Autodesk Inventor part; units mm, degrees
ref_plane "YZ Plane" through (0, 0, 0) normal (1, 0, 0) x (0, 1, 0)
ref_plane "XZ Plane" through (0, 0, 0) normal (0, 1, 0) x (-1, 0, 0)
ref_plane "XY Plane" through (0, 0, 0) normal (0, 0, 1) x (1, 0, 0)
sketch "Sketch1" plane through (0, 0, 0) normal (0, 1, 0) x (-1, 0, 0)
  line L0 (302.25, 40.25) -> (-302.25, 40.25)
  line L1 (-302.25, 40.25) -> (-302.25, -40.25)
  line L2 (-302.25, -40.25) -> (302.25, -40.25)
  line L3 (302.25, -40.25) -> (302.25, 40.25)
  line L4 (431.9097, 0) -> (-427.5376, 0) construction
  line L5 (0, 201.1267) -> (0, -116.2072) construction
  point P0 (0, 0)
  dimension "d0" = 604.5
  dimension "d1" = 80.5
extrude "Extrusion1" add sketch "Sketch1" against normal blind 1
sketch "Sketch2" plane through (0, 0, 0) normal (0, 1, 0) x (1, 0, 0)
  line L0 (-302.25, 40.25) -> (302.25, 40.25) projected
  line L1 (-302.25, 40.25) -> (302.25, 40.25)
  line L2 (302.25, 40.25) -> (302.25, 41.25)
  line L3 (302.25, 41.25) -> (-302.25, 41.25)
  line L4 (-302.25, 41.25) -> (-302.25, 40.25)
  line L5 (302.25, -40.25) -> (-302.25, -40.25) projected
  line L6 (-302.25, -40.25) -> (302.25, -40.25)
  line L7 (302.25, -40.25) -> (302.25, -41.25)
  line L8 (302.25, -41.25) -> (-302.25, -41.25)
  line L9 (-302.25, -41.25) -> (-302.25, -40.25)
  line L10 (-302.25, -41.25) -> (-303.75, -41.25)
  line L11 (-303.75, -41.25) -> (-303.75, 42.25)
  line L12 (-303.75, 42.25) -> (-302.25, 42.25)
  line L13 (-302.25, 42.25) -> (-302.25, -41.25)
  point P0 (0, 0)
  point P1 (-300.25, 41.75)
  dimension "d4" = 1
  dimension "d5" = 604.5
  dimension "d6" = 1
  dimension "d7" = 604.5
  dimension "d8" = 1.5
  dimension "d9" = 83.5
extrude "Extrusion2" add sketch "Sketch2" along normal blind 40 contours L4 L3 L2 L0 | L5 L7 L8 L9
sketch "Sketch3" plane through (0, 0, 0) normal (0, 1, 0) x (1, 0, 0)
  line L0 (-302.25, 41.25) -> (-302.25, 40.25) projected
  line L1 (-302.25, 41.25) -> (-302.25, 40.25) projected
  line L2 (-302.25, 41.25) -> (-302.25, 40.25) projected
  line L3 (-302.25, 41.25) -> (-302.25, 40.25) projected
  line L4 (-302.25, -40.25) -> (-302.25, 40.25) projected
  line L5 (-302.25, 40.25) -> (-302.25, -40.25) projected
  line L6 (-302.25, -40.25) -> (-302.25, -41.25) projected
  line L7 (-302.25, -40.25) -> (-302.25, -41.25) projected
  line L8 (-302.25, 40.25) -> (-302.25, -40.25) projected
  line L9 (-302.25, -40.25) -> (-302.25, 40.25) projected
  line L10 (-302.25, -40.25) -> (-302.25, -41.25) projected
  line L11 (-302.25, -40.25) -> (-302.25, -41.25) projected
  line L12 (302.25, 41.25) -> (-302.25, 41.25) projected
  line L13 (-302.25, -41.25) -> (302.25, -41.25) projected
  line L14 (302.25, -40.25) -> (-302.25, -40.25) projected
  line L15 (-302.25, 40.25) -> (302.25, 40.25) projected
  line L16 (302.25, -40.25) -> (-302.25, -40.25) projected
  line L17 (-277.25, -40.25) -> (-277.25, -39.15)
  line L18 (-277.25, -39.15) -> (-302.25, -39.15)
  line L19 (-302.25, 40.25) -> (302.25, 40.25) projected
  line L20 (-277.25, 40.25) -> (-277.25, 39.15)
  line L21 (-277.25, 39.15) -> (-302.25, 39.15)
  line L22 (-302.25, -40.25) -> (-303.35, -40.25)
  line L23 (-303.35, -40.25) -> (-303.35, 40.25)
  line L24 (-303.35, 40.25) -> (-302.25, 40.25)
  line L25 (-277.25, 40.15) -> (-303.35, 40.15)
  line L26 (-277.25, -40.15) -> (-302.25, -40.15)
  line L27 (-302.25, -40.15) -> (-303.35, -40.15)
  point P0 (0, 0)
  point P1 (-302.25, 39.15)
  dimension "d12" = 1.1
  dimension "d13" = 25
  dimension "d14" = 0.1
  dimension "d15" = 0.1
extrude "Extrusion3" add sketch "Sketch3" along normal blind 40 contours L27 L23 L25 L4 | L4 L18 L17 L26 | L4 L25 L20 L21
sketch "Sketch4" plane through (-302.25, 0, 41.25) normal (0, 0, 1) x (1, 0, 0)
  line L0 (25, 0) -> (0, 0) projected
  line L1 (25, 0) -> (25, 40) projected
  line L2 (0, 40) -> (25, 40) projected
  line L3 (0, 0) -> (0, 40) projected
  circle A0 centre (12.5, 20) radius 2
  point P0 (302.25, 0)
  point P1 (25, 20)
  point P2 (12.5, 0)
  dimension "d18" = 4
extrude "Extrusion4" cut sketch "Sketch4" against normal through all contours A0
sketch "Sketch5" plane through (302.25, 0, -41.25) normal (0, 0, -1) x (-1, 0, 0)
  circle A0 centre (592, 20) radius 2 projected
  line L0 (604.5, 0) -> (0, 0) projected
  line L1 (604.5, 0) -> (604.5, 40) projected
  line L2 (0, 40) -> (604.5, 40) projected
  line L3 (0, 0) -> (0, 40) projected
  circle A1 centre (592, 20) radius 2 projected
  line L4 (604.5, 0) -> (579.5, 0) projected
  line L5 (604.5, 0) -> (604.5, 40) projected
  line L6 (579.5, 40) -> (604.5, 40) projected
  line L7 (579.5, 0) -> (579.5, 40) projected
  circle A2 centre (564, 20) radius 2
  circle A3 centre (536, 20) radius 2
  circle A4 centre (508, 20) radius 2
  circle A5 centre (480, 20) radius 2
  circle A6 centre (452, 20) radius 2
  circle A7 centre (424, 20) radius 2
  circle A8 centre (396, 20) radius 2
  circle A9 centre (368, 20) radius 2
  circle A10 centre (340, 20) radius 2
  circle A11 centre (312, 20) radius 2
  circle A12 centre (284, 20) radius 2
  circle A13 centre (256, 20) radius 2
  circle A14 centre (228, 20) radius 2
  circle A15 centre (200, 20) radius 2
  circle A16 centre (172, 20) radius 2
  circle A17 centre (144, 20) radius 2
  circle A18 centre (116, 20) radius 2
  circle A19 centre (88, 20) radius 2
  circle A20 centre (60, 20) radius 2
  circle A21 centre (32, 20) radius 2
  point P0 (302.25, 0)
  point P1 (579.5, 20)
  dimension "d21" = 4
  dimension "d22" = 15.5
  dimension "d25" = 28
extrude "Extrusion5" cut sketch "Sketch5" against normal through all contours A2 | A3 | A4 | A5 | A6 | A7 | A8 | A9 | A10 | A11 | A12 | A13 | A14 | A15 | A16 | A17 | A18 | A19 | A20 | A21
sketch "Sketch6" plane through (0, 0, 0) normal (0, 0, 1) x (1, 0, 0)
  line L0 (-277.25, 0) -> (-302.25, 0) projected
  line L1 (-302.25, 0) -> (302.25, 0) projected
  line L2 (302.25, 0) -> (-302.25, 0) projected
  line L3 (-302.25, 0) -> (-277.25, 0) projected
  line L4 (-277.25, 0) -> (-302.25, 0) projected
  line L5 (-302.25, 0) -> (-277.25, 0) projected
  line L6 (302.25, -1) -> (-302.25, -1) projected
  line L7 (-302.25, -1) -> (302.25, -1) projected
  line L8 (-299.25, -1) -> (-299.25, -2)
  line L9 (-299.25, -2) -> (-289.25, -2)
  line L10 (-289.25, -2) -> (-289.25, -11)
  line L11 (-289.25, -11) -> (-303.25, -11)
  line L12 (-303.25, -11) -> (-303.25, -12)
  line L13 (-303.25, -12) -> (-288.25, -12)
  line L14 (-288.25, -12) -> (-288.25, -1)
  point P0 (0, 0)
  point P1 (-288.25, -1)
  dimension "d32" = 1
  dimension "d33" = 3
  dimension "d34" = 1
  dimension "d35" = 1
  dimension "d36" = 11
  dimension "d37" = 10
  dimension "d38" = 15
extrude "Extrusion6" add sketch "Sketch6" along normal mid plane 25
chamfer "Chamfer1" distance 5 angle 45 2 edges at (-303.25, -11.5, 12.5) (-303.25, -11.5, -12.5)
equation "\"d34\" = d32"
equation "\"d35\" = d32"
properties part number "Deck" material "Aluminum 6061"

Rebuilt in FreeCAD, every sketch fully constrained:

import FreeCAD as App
import Part
import Sketcher
from FreeCAD import Vector


def edges_at(feature, points):
    """Names of the edges that pass closest to the given points."""
    edges = feature.Shape.Edges
    near = lambda p: min(range(len(edges)), key=lambda i: edges[i].distToShape(Part.Vertex(*p))[0])
    return sorted({f"Edge{near(p) + 1}" for p in points})

doc = App.newDocument("Part")
body = doc.addObject("PartDesign::Body", "Body")
body.AllowCompound = True

sketch1 = body.newObject("Sketcher::SketchObject", "Sketch")
sketch1.AttachmentSupport = (doc.getObject("XZ_Plane"), [""])
sketch1.MapMode = "FlatFace"
sketch1.addGeometry([
    Part.LineSegment(Vector(-302.25, -40.25, 0), Vector(-302.25, 40.25, 0)),
    Part.LineSegment(Vector(-302.25, 40.25, 0), Vector(302.25, 40.25, 0)),
    Part.LineSegment(Vector(302.25, 40.25, 0), Vector(302.25, -40.25, 0)),
    Part.LineSegment(Vector(302.25, -40.25, 0), Vector(-302.25, -40.25, 0)),
], False)
sketch1.addConstraint([
    Sketcher.Constraint("Coincident", 0, 2, 1, 1),
    Sketcher.Constraint("Coincident", 1, 2, 2, 1),
    Sketcher.Constraint("Coincident", 2, 2, 3, 1),
    Sketcher.Constraint("Coincident", 3, 2, 0, 1),
    Sketcher.Constraint("Vertical", 0),
    Sketcher.Constraint("Horizontal", 1),
    Sketcher.Constraint("Vertical", 2),
    Sketcher.Constraint("Horizontal", 3),
    Sketcher.Constraint("Symmetric", 0, 2, 2, 2, -1, 1),
    Sketcher.Constraint("DistanceX", 1, 1, 1, 2, 604.5),
    Sketcher.Constraint("DistanceY", 0, 1, 0, 2, 80.5),
])
pad1 = body.newObject("PartDesign::Pad", "Pad")
pad1.Profile = sketch1
pad1.Length = 1

sketch2 = body.newObject("Sketcher::SketchObject", "Sketch001")
sketch2.AttachmentSupport = (doc.getObject("XZ_Plane"), [""])
sketch2.MapMode = "FlatFace"
sketch2.addGeometry([
    Part.LineSegment(Vector(-302.25, -41.25, 0), Vector(-302.25, -40.25, 0)),
    Part.LineSegment(Vector(-302.25, -40.25, 0), Vector(302.25, -40.25, 0)),
    Part.LineSegment(Vector(302.25, -40.25, 0), Vector(302.25, -41.25, 0)),
    Part.LineSegment(Vector(302.25, -41.25, 0), Vector(-302.25, -41.25, 0)),
    Part.LineSegment(Vector(302.25, 40.25, 0), Vector(-302.25, 40.25, 0)),
    Part.LineSegment(Vector(-302.25, 40.25, 0), Vector(-302.25, 41.25, 0)),
    Part.LineSegment(Vector(-302.25, 41.25, 0), Vector(302.25, 41.25, 0)),
    Part.LineSegment(Vector(302.25, 41.25, 0), Vector(302.25, 40.25, 0)),
], False)
sketch2.addConstraint([
    Sketcher.Constraint("Coincident", 0, 2, 1, 1),
    Sketcher.Constraint("Coincident", 1, 2, 2, 1),
    Sketcher.Constraint("Coincident", 2, 2, 3, 1),
    Sketcher.Constraint("Coincident", 3, 2, 0, 1),
    Sketcher.Constraint("Coincident", 4, 2, 5, 1),
    Sketcher.Constraint("Coincident", 5, 2, 6, 1),
    Sketcher.Constraint("Coincident", 6, 2, 7, 1),
    Sketcher.Constraint("Coincident", 7, 2, 4, 1),
    Sketcher.Constraint("Vertical", 0),
    Sketcher.Constraint("Horizontal", 1),
    Sketcher.Constraint("Vertical", 2),
    Sketcher.Constraint("Horizontal", 3),
    Sketcher.Constraint("Horizontal", 4),
    Sketcher.Constraint("Vertical", 5),
    Sketcher.Constraint("Horizontal", 6),
    Sketcher.Constraint("Vertical", 7),
    Sketcher.Constraint("Symmetric", 1, 2, 4, 2, -1, 1),
    Sketcher.Constraint("Symmetric", 3, 2, 6, 2, -1, 1),
    Sketcher.Constraint("Vertical", 3, 2, 4, 2),
    Sketcher.Constraint("DistanceY", 0, 1, 0, 2, 1.0),
    Sketcher.Constraint("DistanceX", 1, 1, 1, 2, 604.5),
    Sketcher.Constraint("DistanceY", 0, 2, 4, 2, 80.5),
])
pad2 = body.newObject("PartDesign::Pad", "Pad001")
pad2.Profile = sketch2
pad2.Length = 40
pad2.Reversed = True

sketch3 = body.newObject("Sketcher::SketchObject", "Sketch002")
sketch3.AttachmentSupport = (doc.getObject("XZ_Plane"), [""])
sketch3.MapMode = "FlatFace"
sketch3.addGeometry([
    Part.LineSegment(Vector(-303.35, 40.15, 0), Vector(-277.25, 40.15, 0)),
    Part.LineSegment(Vector(-277.25, 40.15, 0), Vector(-277.25, 39.15, 0)),
    Part.LineSegment(Vector(-277.25, 39.15, 0), Vector(-302.25, 39.15, 0)),
    Part.LineSegment(Vector(-302.25, 39.15, 0), Vector(-302.25, -39.15, 0)),
    Part.LineSegment(Vector(-302.25, -39.15, 0), Vector(-277.25, -39.15, 0)),
    Part.LineSegment(Vector(-277.25, -39.15, 0), Vector(-277.25, -40.15, 0)),
    Part.LineSegment(Vector(-277.25, -40.15, 0), Vector(-303.35, -40.15, 0)),
    Part.LineSegment(Vector(-303.35, -40.15, 0), Vector(-303.35, 40.15, 0)),
], False)
sketch3.addConstraint([
    Sketcher.Constraint("Coincident", 0, 2, 1, 1),
    Sketcher.Constraint("Coincident", 1, 2, 2, 1),
    Sketcher.Constraint("Coincident", 2, 2, 3, 1),
    Sketcher.Constraint("Coincident", 3, 2, 4, 1),
    Sketcher.Constraint("Coincident", 4, 2, 5, 1),
    Sketcher.Constraint("Coincident", 5, 2, 6, 1),
    Sketcher.Constraint("Coincident", 6, 2, 7, 1),
    Sketcher.Constraint("Coincident", 7, 2, 0, 1),
    Sketcher.Constraint("Horizontal", 0),
    Sketcher.Constraint("Vertical", 1),
    Sketcher.Constraint("Horizontal", 2),
    Sketcher.Constraint("Vertical", 3),
    Sketcher.Constraint("Horizontal", 4),
    Sketcher.Constraint("Vertical", 5),
    Sketcher.Constraint("Horizontal", 6),
    Sketcher.Constraint("Vertical", 7),
    Sketcher.Constraint("Symmetric", 1, 2, 4, 2, -1),
    Sketcher.Constraint("Equal", 1, 5),
    Sketcher.Constraint("DistanceX", 2, 2, 2, 1, 25.0),
    Sketcher.Constraint("DistanceX", 6, 2, 3, 2, 1.1),
    Sketcher.Constraint("DistanceY", 1, 2, 1, 1, 1.0),
    Sketcher.Constraint("DistanceY", 3, 2, 3, 1, 78.3),
    Sketcher.Constraint("DistanceX", 0, 2, -1, 1, 277.25),
])
pad3 = body.newObject("PartDesign::Pad", "Pad002")
pad3.Profile = sketch3
pad3.Length = 40
pad3.Reversed = True

sketch4 = body.newObject("Sketcher::SketchObject", "Sketch003")
sketch4.AttachmentSupport = (doc.getObject("XY_Plane"), [""])
sketch4.MapMode = "FlatFace"
sketch4.AttachmentOffset = App.Placement(Vector(0, 0, 41.25), App.Rotation())
sketch4.addGeometry(Part.Circle(Vector(-289.75, 20, 0), Vector(0, 0, 1), 2), False)
sketch4.addConstraint([
    Sketcher.Constraint("Diameter", 0, 4.0),
    Sketcher.Constraint("DistanceY", -1, 1, 0, 3, 20.0),
    Sketcher.Constraint("DistanceX", 0, 3, -1, 1, 289.75),
])
pocket1 = body.newObject("PartDesign::Pocket", "Pocket")
pocket1.Profile = sketch4
pocket1.Type = "ThroughAll"

sketch5 = body.newObject("Sketcher::SketchObject", "Sketch004")
sketch5.AttachmentSupport = (doc.getObject("XY_Plane"), [""])
sketch5.MapMode = "FlatFace"
sketch5.AttachmentOffset = App.Placement(Vector(0, 0, -41.25), App.Rotation())
sketch5.addGeometry([
    Part.Circle(Vector(-261.75, 20, 0), Vector(0, 0, 1), 2),
    Part.Circle(Vector(-233.75, 20, 0), Vector(0, 0, 1), 2),
    Part.Circle(Vector(-205.75, 20, 0), Vector(0, 0, 1), 2),
    Part.Circle(Vector(-177.75, 20, 0), Vector(0, 0, 1), 2),
    Part.Circle(Vector(-149.75, 20, 0), Vector(0, 0, 1), 2),
    Part.Circle(Vector(-121.75, 20, 0), Vector(0, 0, 1), 2),
    Part.Circle(Vector(-93.75, 20, 0), Vector(0, 0, 1), 2),
    Part.Circle(Vector(-65.75, 20, 0), Vector(0, 0, 1), 2),
    Part.Circle(Vector(-37.75, 20, 0), Vector(0, 0, 1), 2),
    Part.Circle(Vector(-9.75, 20, 0), Vector(0, 0, 1), 2),
    Part.Circle(Vector(18.25, 20, 0), Vector(0, 0, 1), 2),
    Part.Circle(Vector(46.25, 20, 0), Vector(0, 0, 1), 2),
    Part.Circle(Vector(74.25, 20, 0), Vector(0, 0, 1), 2),
    Part.Circle(Vector(102.25, 20, 0), Vector(0, 0, 1), 2),
    Part.Circle(Vector(130.25, 20, 0), Vector(0, 0, 1), 2),
    Part.Circle(Vector(158.25, 20, 0), Vector(0, 0, 1), 2),
    Part.Circle(Vector(186.25, 20, 0), Vector(0, 0, 1), 2),
    Part.Circle(Vector(214.25, 20, 0), Vector(0, 0, 1), 2),
    Part.Circle(Vector(242.25, 20, 0), Vector(0, 0, 1), 2),
    Part.Circle(Vector(270.25, 20, 0), Vector(0, 0, 1), 2),
], False)
sketch5.addConstraint([
    Sketcher.Constraint("Equal", 0, 1),
    Sketcher.Constraint("Equal", 1, 2),
    Sketcher.Constraint("Equal", 2, 3),
    Sketcher.Constraint("Equal", 3, 4),
    Sketcher.Constraint("Equal", 4, 5),
    Sketcher.Constraint("Equal", 5, 6),
    Sketcher.Constraint("Equal", 6, 7),
    Sketcher.Constraint("Equal", 7, 8),
    Sketcher.Constraint("Equal", 8, 9),
    Sketcher.Constraint("Equal", 9, 10),
    Sketcher.Constraint("Equal", 10, 11),
    Sketcher.Constraint("Equal", 11, 12),
    Sketcher.Constraint("Equal", 12, 13),
    Sketcher.Constraint("Equal", 13, 14),
    Sketcher.Constraint("Equal", 14, 15),
    Sketcher.Constraint("Equal", 15, 16),
    Sketcher.Constraint("Equal", 16, 17),
    Sketcher.Constraint("Equal", 17, 18),
    Sketcher.Constraint("Equal", 18, 19),
    Sketcher.Constraint("Horizontal", 0, 3, 1, 3),
    Sketcher.Constraint("Horizontal", 1, 3, 2, 3),
    Sketcher.Constraint("Horizontal", 2, 3, 3, 3),
    Sketcher.Constraint("Horizontal", 3, 3, 4, 3),
    Sketcher.Constraint("Horizontal", 4, 3, 5, 3),
    Sketcher.Constraint("Horizontal", 5, 3, 6, 3),
    Sketcher.Constraint("Horizontal", 6, 3, 7, 3),
    Sketcher.Constraint("Horizontal", 7, 3, 8, 3),
    Sketcher.Constraint("Horizontal", 8, 3, 9, 3),
    Sketcher.Constraint("Horizontal", 9, 3, 10, 3),
    Sketcher.Constraint("Horizontal", 10, 3, 11, 3),
    Sketcher.Constraint("Horizontal", 11, 3, 12, 3),
    Sketcher.Constraint("Horizontal", 12, 3, 13, 3),
    Sketcher.Constraint("Horizontal", 13, 3, 14, 3),
    Sketcher.Constraint("Horizontal", 14, 3, 15, 3),
    Sketcher.Constraint("Horizontal", 15, 3, 16, 3),
    Sketcher.Constraint("Horizontal", 16, 3, 17, 3),
    Sketcher.Constraint("Horizontal", 17, 3, 18, 3),
    Sketcher.Constraint("Horizontal", 18, 3, 19, 3),
    Sketcher.Constraint("Diameter", 0, 4.0),
    Sketcher.Constraint("DistanceX", 0, 3, 1, 3, 28.0),
    Sketcher.Constraint("DistanceX", 1, 3, 2, 3, 28.0),
    Sketcher.Constraint("DistanceX", 2, 3, 3, 3, 28.0),
    Sketcher.Constraint("DistanceX", 3, 3, 4, 3, 28.0),
    Sketcher.Constraint("DistanceX", 4, 3, 5, 3, 28.0),
    Sketcher.Constraint("DistanceX", 5, 3, 6, 3, 28.0),
    Sketcher.Constraint("DistanceX", 6, 3, 7, 3, 28.0),
    Sketcher.Constraint("DistanceX", 7, 3, 8, 3, 28.0),
    Sketcher.Constraint("DistanceX", 8, 3, 9, 3, 28.0),
    Sketcher.Constraint("DistanceX", 9, 3, 10, 3, 28.0),
    Sketcher.Constraint("DistanceX", 10, 3, 11, 3, 28.0),
    Sketcher.Constraint("DistanceX", 11, 3, 12, 3, 28.0),
    Sketcher.Constraint("DistanceX", 12, 3, 13, 3, 28.0),
    Sketcher.Constraint("DistanceX", 13, 3, 14, 3, 28.0),
    Sketcher.Constraint("DistanceX", 14, 3, 15, 3, 28.0),
    Sketcher.Constraint("DistanceX", 15, 3, 16, 3, 28.0),
    Sketcher.Constraint("DistanceX", 16, 3, 17, 3, 28.0),
    Sketcher.Constraint("DistanceX", 17, 3, 18, 3, 28.0),
    Sketcher.Constraint("DistanceX", 18, 3, 19, 3, 28.0),
    Sketcher.Constraint("DistanceY", -1, 1, 0, 3, 20.0),
    Sketcher.Constraint("DistanceX", 0, 3, -1, 1, 261.75),
])
pocket2 = body.newObject("PartDesign::Pocket", "Pocket001")
pocket2.Profile = sketch5
pocket2.Type = "ThroughAll"
pocket2.Reversed = True

sketch6 = body.newObject("Sketcher::SketchObject", "Sketch005")
sketch6.AttachmentSupport = (doc.getObject("XY_Plane"), [""])
sketch6.MapMode = "FlatFace"
sketch6.addGeometry([
    Part.LineSegment(Vector(-288.25, -12, 0), Vector(-288.25, -1, 0)),
    Part.LineSegment(Vector(-288.25, -1, 0), Vector(-299.25, -1, 0)),
    Part.LineSegment(Vector(-299.25, -1, 0), Vector(-299.25, -2, 0)),
    Part.LineSegment(Vector(-299.25, -2, 0), Vector(-289.25, -2, 0)),
    Part.LineSegment(Vector(-289.25, -2, 0), Vector(-289.25, -11, 0)),
    Part.LineSegment(Vector(-289.25, -11, 0), Vector(-303.25, -11, 0)),
    Part.LineSegment(Vector(-303.25, -11, 0), Vector(-303.25, -12, 0)),
    Part.LineSegment(Vector(-303.25, -12, 0), Vector(-288.25, -12, 0)),
], False)
sketch6.addConstraint([
    Sketcher.Constraint("Coincident", 0, 2, 1, 1),
    Sketcher.Constraint("Coincident", 1, 2, 2, 1),
    Sketcher.Constraint("Coincident", 2, 2, 3, 1),
    Sketcher.Constraint("Coincident", 3, 2, 4, 1),
    Sketcher.Constraint("Coincident", 4, 2, 5, 1),
    Sketcher.Constraint("Coincident", 5, 2, 6, 1),
    Sketcher.Constraint("Coincident", 6, 2, 7, 1),
    Sketcher.Constraint("Coincident", 7, 2, 0, 1),
    Sketcher.Constraint("Vertical", 0),
    Sketcher.Constraint("Horizontal", 1),
    Sketcher.Constraint("Vertical", 2),
    Sketcher.Constraint("Horizontal", 3),
    Sketcher.Constraint("Vertical", 4),
    Sketcher.Constraint("Horizontal", 5),
    Sketcher.Constraint("Vertical", 6),
    Sketcher.Constraint("Horizontal", 7),
    Sketcher.Constraint("Equal", 1, 0),
    Sketcher.Constraint("Equal", 2, 6),
    Sketcher.Constraint("DistanceX", 1, 2, 1, 1, 11.0),
    Sketcher.Constraint("DistanceX", 3, 1, 3, 2, 10.0),
    Sketcher.Constraint("DistanceX", 7, 1, 7, 2, 15.0),
    Sketcher.Constraint("DistanceY", 2, 2, 2, 1, 1.0),
    Sketcher.Constraint("DistanceY", 0, 2, -1, 1, 1.0),
    Sketcher.Constraint("DistanceX", 0, 2, -1, 1, 288.25),
])
pad4 = body.newObject("PartDesign::Pad", "Pad003")
pad4.Profile = sketch6
pad4.Length = 25
pad4.Midplane = True
doc.recompute()

chamfer = body.newObject("PartDesign::Chamfer", "Chamfer")
chamfer.Base = (pad4, edges_at(pad4, [(-303.25, -11.5, 12.5), (-303.25, -11.5, -12.5)]))
chamfer.Size = 5

doc.recompute()
